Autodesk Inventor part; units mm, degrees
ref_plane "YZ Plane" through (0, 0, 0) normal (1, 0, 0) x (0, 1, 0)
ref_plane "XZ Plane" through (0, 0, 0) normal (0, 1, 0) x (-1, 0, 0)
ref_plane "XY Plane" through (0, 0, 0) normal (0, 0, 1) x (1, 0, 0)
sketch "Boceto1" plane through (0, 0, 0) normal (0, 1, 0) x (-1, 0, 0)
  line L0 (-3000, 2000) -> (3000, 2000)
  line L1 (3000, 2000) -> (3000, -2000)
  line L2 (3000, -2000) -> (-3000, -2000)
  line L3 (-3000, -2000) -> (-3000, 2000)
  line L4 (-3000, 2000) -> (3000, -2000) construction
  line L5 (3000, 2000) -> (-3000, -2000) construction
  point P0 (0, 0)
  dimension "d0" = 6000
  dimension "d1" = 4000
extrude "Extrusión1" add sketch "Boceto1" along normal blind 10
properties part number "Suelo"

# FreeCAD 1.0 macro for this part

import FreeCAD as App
import Part
import Sketcher
from FreeCAD import Vector

doc = App.newDocument("Part")
body = doc.addObject("PartDesign::Body", "Body")

# Sketch on XZ plane
sketch1 = body.newObject("Sketcher::SketchObject", "Sketch")
sketch1.AttachmentSupport = (doc.getObject("XZ_Plane"), [""])
sketch1.MapMode = "FlatFace"
sketch1.addGeometry(Part.LineSegment(Vector(-3000, 2000, 0), Vector(3000, 2000, 0)), False)
sketch1.addGeometry(Part.LineSegment(Vector(3000, 2000, 0), Vector(3000, -2000, 0)), False)
sketch1.addGeometry(Part.LineSegment(Vector(3000, -2000, 0), Vector(-3000, -2000, 0)), False)
sketch1.addGeometry(Part.LineSegment(Vector(-3000, -2000, 0), Vector(-3000, 2000, 0)), False)
sketch1.addConstraint(Sketcher.Constraint("Coincident", 0, 2, 1, 1))
sketch1.addConstraint(Sketcher.Constraint("Coincident", 1, 2, 2, 1))
sketch1.addConstraint(Sketcher.Constraint("Coincident", 2, 2, 3, 1))
sketch1.addConstraint(Sketcher.Constraint("Coincident", 3, 2, 0, 1))
sketch1.addConstraint(Sketcher.Constraint("Horizontal", 0))
sketch1.addConstraint(Sketcher.Constraint("Vertical", 1))
sketch1.addConstraint(Sketcher.Constraint("Horizontal", 2))
sketch1.addConstraint(Sketcher.Constraint("Vertical", 3))
sketch1.addConstraint(Sketcher.Constraint("Symmetric", 0, 2, 2, 2, -1, 1))
sketch1.addConstraint(Sketcher.Constraint("DistanceX", 0, 1, 0, 2, 6000.0))
sketch1.addConstraint(Sketcher.Constraint("DistanceY", 1, 2, 1, 1, 4000.0))
pad1 = body.newObject("PartDesign::Pad", "Pad")
pad1.Profile = sketch1
pad1.Length = 10
pad1.Reversed = True

doc.recompute()
